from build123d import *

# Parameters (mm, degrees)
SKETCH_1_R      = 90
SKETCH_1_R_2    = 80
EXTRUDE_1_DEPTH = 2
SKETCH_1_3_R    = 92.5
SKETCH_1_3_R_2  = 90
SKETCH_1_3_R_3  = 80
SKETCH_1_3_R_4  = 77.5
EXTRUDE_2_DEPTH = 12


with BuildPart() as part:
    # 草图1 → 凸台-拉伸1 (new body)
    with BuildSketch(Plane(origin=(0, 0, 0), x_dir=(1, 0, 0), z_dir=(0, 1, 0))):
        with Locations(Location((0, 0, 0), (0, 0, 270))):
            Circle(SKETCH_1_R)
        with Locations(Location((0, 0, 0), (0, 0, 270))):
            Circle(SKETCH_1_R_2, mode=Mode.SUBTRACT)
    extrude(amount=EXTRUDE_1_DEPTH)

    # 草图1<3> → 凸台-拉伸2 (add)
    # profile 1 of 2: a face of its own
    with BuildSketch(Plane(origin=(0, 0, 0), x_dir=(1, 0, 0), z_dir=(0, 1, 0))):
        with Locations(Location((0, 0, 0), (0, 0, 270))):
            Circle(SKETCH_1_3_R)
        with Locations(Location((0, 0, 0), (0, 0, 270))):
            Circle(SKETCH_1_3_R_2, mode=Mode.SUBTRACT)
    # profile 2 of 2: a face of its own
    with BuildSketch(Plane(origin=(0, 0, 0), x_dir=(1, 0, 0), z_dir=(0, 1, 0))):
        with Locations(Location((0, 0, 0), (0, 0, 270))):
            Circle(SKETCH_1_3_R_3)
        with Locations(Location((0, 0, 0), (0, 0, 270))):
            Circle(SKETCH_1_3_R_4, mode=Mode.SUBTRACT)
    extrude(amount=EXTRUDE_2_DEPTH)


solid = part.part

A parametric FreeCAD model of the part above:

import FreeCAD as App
import Part
import Sketcher
from FreeCAD import Vector
Q = App.Units.Quantity

doc = App.newDocument("Part")
body = doc.addObject("PartDesign::Body", "Body")

# Sketch on XZ plane
sketch1 = body.newObject("Sketcher::SketchObject", "Sketch")
sketch1.AttachmentSupport = (doc.getObject("XZ_Plane"), [""])
sketch1.MapMode = "FlatFace"
sketch1.addGeometry([
    Part.Circle(Vector(0, 0, 0), Vector(0, 0, 1), 90),
    Part.Circle(Vector(0, 0, 0), Vector(0, 0, 1), 80),
], False)
sketch1.addConstraint([
    Sketcher.Constraint("Coincident", 0, 3, -1, 1),
    Sketcher.Constraint("Coincident", 1, 3, -1, 1),
    Sketcher.Constraint("Diameter", 0, Q("180 mm")),
    Sketcher.Constraint("Diameter", 1, Q("160 mm")),
])
pad1 = body.newObject("PartDesign::Pad", "Pad")
pad1.Profile = sketch1
pad1.Length = 2
pad1.Reversed = True

# Sketch on XZ plane
sketch2 = body.newObject("Sketcher::SketchObject", "Sketch001")
sketch2.AttachmentSupport = (doc.getObject("XZ_Plane"), [""])
sketch2.MapMode = "FlatFace"
sketch2.addGeometry([
    Part.Circle(Vector(0, 0, 0), Vector(0, 0, 1), 92),
    Part.Circle(Vector(0, 0, 0), Vector(0, 0, 1), 90),
    Part.Circle(Vector(0, 0, 0), Vector(0, 0, 1), 80),
    Part.Circle(Vector(0, 0, 0), Vector(0, 0, 1), 78),
], False)
sketch2.addConstraint([
    Sketcher.Constraint("Coincident", 0, 3, -1, 1),
    Sketcher.Constraint("Coincident", 1, 3, -1, 1),
    Sketcher.Constraint("Coincident", 2, 3, -1, 1),
    Sketcher.Constraint("Coincident", 3, 3, -1, 1),
    Sketcher.Constraint("Diameter", 0, Q("185 mm")),
    Sketcher.Constraint("Diameter", 1, Q("180 mm")),
    Sketcher.Constraint("Diameter", 2, Q("160 mm")),
    Sketcher.Constraint("Diameter", 3, Q("155 mm")),
])
pad2 = body.newObject("PartDesign::Pad", "Pad001")
pad2.Profile = sketch2
pad2.Length = 12
pad2.Reversed = True

doc.recompute()
